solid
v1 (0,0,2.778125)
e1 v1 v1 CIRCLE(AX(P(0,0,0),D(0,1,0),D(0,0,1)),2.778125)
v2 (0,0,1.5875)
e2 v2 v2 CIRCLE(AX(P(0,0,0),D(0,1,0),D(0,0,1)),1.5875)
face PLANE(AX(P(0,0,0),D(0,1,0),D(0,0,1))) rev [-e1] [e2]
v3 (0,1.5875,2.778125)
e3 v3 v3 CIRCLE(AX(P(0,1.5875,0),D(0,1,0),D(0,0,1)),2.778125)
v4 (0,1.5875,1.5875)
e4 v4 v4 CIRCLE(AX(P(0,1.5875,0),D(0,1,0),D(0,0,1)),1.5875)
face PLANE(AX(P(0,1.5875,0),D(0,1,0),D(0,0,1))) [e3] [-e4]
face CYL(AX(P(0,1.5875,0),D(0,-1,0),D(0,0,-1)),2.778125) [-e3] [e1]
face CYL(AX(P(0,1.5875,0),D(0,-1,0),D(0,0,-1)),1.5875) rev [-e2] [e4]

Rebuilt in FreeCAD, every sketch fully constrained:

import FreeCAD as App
import Part
import Sketcher
Q = App.Units.Quantity

doc = App.newDocument("Part")
body = doc.addObject("PartDesign::Body", "Body")

# Sketch on XZ plane
sketch1 = doc.addObject("Sketcher::SketchObject", "Sketch")
body.addObject(sketch1)
sketch1.AttachmentSupport = (doc.XZ_Plane, [""])
sketch1.MapMode = "FlatFace"
sketch1.addGeometry([
    Part.Circle(App.Vector(0, 0, 0), App.Vector(0, 0, 1), 2.8),
    Part.Circle(App.Vector(0, 0, 0), App.Vector(0, 0, 1), 1.6),
], False)
sketch1.addConstraint([
    Sketcher.Constraint("Coincident", 0, 3, -1, 1),
    Sketcher.Constraint("Coincident", 1, 3, -1, 1),
    Sketcher.Constraint("Diameter", 0, Q("0.21875 in")),
    Sketcher.Constraint("Diameter", 1, Q("0.125 in")),
])
pad1 = doc.addObject("PartDesign::Pad", "Pad")
body.addObject(pad1)
pad1.Profile = sketch1
pad1.Length = Q("0.0625 in")
pad1.Reversed = True

doc.recompute()
